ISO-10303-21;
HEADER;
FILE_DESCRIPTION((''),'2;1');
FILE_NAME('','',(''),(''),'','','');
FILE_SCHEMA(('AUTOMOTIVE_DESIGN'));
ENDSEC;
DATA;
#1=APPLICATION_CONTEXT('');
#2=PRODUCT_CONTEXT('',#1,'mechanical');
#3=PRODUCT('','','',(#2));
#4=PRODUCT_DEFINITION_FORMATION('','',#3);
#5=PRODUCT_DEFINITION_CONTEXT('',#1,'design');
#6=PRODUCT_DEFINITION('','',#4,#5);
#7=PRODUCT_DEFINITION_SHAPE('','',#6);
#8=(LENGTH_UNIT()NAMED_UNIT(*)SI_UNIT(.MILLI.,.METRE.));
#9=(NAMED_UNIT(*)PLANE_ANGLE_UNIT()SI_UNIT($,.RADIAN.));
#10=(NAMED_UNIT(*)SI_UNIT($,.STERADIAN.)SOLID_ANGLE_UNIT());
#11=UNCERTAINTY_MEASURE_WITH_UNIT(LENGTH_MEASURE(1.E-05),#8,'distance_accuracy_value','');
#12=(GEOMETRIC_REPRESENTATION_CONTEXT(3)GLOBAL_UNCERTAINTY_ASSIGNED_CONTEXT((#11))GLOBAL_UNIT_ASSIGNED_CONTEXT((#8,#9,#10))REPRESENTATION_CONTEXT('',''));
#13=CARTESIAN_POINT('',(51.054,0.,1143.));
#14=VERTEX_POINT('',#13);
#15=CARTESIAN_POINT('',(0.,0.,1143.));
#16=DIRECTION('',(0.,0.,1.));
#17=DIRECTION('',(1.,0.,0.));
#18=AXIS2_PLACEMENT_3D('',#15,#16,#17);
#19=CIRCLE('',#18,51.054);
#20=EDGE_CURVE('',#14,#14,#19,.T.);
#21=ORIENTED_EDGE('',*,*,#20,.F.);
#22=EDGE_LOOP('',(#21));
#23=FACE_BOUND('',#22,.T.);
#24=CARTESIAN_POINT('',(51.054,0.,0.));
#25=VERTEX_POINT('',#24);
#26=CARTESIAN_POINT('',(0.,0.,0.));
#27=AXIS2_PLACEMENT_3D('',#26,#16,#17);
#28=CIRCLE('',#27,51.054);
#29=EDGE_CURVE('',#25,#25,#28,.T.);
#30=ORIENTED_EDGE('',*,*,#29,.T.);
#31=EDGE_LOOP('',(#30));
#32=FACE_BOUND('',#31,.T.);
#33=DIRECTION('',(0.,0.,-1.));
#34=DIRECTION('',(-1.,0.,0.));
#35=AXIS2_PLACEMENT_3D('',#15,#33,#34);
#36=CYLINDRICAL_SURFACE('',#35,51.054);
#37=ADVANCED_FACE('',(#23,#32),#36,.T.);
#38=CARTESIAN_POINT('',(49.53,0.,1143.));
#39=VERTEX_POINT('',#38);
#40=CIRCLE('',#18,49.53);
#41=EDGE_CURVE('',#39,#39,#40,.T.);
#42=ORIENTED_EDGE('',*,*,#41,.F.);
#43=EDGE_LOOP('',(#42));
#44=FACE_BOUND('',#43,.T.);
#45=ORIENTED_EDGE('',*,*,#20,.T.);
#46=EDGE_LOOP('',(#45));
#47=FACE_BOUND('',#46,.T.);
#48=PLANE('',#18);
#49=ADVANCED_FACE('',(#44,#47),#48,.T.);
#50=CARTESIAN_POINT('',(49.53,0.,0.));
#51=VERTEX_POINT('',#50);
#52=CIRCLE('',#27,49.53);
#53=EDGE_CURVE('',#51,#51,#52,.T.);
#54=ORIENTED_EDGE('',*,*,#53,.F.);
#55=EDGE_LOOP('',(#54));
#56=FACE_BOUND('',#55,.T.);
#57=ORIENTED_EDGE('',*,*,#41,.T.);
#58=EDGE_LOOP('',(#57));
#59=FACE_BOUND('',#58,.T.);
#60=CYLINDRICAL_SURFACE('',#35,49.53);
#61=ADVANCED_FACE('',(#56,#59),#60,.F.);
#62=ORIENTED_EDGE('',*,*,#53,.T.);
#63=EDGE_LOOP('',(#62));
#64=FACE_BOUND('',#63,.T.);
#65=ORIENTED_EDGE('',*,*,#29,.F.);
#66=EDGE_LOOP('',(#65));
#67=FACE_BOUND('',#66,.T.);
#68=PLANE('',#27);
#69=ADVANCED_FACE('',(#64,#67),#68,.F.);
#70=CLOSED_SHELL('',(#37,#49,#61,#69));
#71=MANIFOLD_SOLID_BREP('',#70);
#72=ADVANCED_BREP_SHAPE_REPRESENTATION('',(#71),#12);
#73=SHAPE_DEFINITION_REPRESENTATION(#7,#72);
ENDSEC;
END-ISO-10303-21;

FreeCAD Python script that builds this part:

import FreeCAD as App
import Part
import Sketcher
from FreeCAD import Vector
Q = App.Units.Quantity

doc = App.newDocument("Part")
params = doc.addObject("Spreadsheet::Sheet", "Params")
for row, (alias, value) in enumerate([
    ("sketch1_diameter", "3.9 in"),
    ("sketch1_diameter2", "4.02 in"),
    ("pad1_length", "45 in"),
], start=1):
    params.set(f"A{row}", alias)
    params.set(f"B{row}", "=" + value)
    params.setAlias(f"B{row}", alias)

body = doc.addObject("PartDesign::Body", "Body")

sketch1 = doc.addObject("Sketcher::SketchObject", "Sketch")
body.addObject(sketch1)
sketch1.AttachmentSupport = (doc.XY_Plane, [""])
sketch1.MapMode = "FlatFace"
sketch1.addGeometry([
    Part.Circle(Vector(0, 0, 0), Vector(0, 0, 1), 51),
    Part.Circle(Vector(0, 0, 0), Vector(0, 0, 1), 50),
], False)
sketch1.addConstraint([
    Sketcher.Constraint("Coincident", 0, 3, -1, 1),
    Sketcher.Constraint("Coincident", 1, 3, -1, 1),
    Sketcher.Constraint("Diameter", 1, Q("3.9 in")),
    Sketcher.Constraint("Diameter", 0, Q("4.02 in")),
])
sketch1.setExpression("Constraints[2]", "Params.sketch1_diameter")
sketch1.setExpression("Constraints[3]", "Params.sketch1_diameter2")
pad1 = doc.addObject("PartDesign::Pad", "Pad")
body.addObject(pad1)
pad1.Profile = sketch1
pad1.setExpression("Length", "Params.pad1_length")

doc.recompute()
